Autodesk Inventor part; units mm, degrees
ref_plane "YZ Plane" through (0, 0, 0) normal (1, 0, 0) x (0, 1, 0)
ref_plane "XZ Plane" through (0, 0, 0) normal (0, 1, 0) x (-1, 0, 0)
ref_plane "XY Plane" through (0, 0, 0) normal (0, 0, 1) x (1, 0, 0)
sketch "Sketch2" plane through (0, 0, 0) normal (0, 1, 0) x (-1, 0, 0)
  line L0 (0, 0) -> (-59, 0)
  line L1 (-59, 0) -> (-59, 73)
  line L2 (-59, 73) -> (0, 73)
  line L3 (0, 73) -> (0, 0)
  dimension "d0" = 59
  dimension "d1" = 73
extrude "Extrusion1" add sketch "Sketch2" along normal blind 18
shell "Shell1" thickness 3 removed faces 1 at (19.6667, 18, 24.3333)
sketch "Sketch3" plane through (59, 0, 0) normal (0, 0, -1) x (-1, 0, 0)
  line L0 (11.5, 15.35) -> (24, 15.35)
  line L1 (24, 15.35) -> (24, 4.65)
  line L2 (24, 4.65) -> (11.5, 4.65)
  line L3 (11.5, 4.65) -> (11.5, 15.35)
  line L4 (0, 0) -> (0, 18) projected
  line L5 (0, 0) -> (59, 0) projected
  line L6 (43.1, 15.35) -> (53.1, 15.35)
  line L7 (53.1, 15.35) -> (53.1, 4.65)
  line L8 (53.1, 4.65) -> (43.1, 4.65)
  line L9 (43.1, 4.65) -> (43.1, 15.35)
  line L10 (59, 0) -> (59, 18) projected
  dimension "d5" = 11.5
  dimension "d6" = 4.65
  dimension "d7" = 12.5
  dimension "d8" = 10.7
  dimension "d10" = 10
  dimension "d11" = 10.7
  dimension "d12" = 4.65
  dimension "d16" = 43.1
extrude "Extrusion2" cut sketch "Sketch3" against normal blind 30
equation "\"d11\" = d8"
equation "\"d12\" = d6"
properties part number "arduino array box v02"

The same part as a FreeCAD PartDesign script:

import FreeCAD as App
import Part
import Sketcher
from FreeCAD import Vector


def faces_at(feature, points):
    """Names of the faces that lie closest to the given points."""
    faces = feature.Shape.Faces
    near = lambda p: min(range(len(faces)), key=lambda i: faces[i].distToShape(Part.Vertex(*p))[0])
    return sorted({f"Face{near(p) + 1}" for p in points})


def add_polygon(sketch, points):
    """Adds a closed chain of lines whose ends are joined by coincident constraints."""
    first, n = sketch.GeometryCount, len(points)
    for a, b in zip(points, points[1:] + points[:1]):
        sketch.addGeometry(Part.LineSegment(App.Vector(*a, 0), App.Vector(*b, 0)), False)
    for i in range(n):
        sketch.addConstraint(Sketcher.Constraint("Coincident", first + i, 2, first + (i + 1) % n, 1))

doc = App.newDocument("Part")
params = doc.addObject("Spreadsheet::Sheet", "Params")
for row, (alias, value) in enumerate([
    ("sketch1_width", "59 mm"),
    ("sketch1_height", "73 mm"),
    ("pad1_length", "18 mm"),
    ("thickness_wall", "3 mm"),
    ("sketch2_width", "10 mm"),
    ("sketch2_width2", "12.5 mm"),
    ("sketch2_height", "10.7 mm"),
    ("pocket1_length", "30 mm"),
], start=1):
    params.set(f"A{row}", alias)
    params.set(f"B{row}", "=" + value)
    params.setAlias(f"B{row}", alias)

body = doc.addObject("PartDesign::Body", "Body")

# Sketch on XZ plane
sketch1 = body.newObject("Sketcher::SketchObject", "Sketch")
sketch1.AttachmentSupport = (doc.getObject("XZ_Plane"), [""])
sketch1.MapMode = "FlatFace"
add_polygon(sketch1, [(59, 0), (0, 0), (0, 73), (59, 73)])  # lines 0-3
sketch1.addConstraint([
    Sketcher.Constraint("Horizontal", 0),
    Sketcher.Constraint("Vertical", 1),
    Sketcher.Constraint("Horizontal", 2),
    Sketcher.Constraint("Vertical", 3),
    Sketcher.Constraint("Coincident", 0, 2, -1, 1),
    Sketcher.Constraint("DistanceX", 0, 2, 0, 1, 59.0),
    Sketcher.Constraint("DistanceY", 1, 1, 1, 2, 73.0),
])
sketch1.setExpression("Constraints[9]", "Params.sketch1_width")
sketch1.setExpression("Constraints[10]", "Params.sketch1_height")
pad1 = body.newObject("PartDesign::Pad", "Pad")
pad1.Profile = sketch1
pad1.setExpression("Length", "Params.pad1_length")
pad1.Reversed = True
doc.recompute()

thickness = body.newObject("PartDesign::Thickness", "Thickness")
thickness.Base = (pad1, faces_at(pad1, [(19.667, 18, 24.333)]))
thickness.setExpression("Value", "Params.thickness_wall")
thickness.Reversed = True
thickness.Join = "Intersection"

# Sketch on XY plane
sketch2 = body.newObject("Sketcher::SketchObject", "Sketch001")
sketch2.AttachmentSupport = (doc.getObject("XY_Plane"), [""])
sketch2.MapMode = "FlatFace"
add_polygon(sketch2, [(35, 15.35), (47.5, 15.35), (47.5, 4.65), (35, 4.65)])  # lines 0-3
add_polygon(sketch2, [(5.9, 15.35), (15.9, 15.35), (15.9, 4.65), (5.9, 4.65)])  # lines 4-7
sketch2.addConstraint([
    Sketcher.Constraint("Horizontal", 0),
    Sketcher.Constraint("Vertical", 1),
    Sketcher.Constraint("Horizontal", 2),
    Sketcher.Constraint("Vertical", 3),
    Sketcher.Constraint("Horizontal", 4),
    Sketcher.Constraint("Vertical", 5),
    Sketcher.Constraint("Horizontal", 6),
    Sketcher.Constraint("Vertical", 7),
    Sketcher.Constraint("Horizontal", 3, 2, 4, 2),
    Sketcher.Constraint("Horizontal", 2, 2, 5, 2),
    Sketcher.Constraint("DistanceX", 4, 1, 4, 2, 10.0),
    Sketcher.Constraint("DistanceX", 0, 1, 0, 2, 12.5),
    Sketcher.Constraint("DistanceY", 1, 2, 1, 1, 10.7),
    Sketcher.Constraint("DistanceY", -1, 1, 1, 2, 4.65),
    Sketcher.Constraint("DistanceX", -1, 1, 2, 2, 35.0),
    Sketcher.Constraint("DistanceX", -1, 1, 4, 2, 15.9),
])
sketch2.setExpression("Constraints[18]", "Params.sketch2_width")
sketch2.setExpression("Constraints[19]", "Params.sketch2_width2")
sketch2.setExpression("Constraints[20]", "Params.sketch2_height")
pocket1 = body.newObject("PartDesign::Pocket", "Pocket")
pocket1.Profile = sketch2
pocket1.setExpression("Length", "Params.pocket1_length")
pocket1.Reversed = True

doc.recompute()
